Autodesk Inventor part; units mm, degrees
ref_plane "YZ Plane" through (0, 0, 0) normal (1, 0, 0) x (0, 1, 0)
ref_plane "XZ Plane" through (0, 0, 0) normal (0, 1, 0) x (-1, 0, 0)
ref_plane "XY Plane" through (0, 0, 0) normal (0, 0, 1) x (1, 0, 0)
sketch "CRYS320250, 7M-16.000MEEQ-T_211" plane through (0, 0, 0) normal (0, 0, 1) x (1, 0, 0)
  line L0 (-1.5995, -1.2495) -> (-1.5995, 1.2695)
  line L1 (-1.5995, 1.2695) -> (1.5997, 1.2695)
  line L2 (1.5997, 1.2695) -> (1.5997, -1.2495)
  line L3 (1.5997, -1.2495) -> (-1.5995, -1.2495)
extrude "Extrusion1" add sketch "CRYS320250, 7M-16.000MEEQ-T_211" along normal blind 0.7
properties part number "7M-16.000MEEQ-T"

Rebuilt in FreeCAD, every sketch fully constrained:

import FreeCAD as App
import Part
import Sketcher
from FreeCAD import Vector


def add_polygon(sketch, points):
    """Adds a closed chain of lines whose ends are joined by coincident constraints."""
    first, n = sketch.GeometryCount, len(points)
    for a, b in zip(points, points[1:] + points[:1]):
        sketch.addGeometry(Part.LineSegment(App.Vector(*a, 0), App.Vector(*b, 0)), False)
    for i in range(n):
        sketch.addConstraint(Sketcher.Constraint("Coincident", first + i, 2, first + (i + 1) % n, 1))

doc = App.newDocument("Part")
params = doc.addObject("Spreadsheet::Sheet", "Params")
for row, (alias, value) in enumerate([
    ("pad1_length", "0.7 mm"),
], start=1):
    params.set(f"A{row}", alias)
    params.set(f"B{row}", "=" + value)
    params.setAlias(f"B{row}", alias)

body = doc.addObject("PartDesign::Body", "Body")

sketch1 = body.newObject("Sketcher::SketchObject", "Sketch")
sketch1.AttachmentSupport = (doc.getObject("XY_Plane"), [""])
sketch1.MapMode = "FlatFace"
add_polygon(sketch1, [(-1.5995, 1.2695), (-1.5995, -1.2495), (1.5997, -1.2495), (1.5997, 1.2695)])
sketch1.addConstraint(Sketcher.Constraint("Vertical", 0))
sketch1.addConstraint(Sketcher.Constraint("Horizontal", 1))
sketch1.addConstraint(Sketcher.Constraint("Vertical", 2))
sketch1.addConstraint(Sketcher.Constraint("Horizontal", 3))
sketch1.addConstraint(Sketcher.Constraint("DistanceY", 0, 2, 0, 1, 2.519))
sketch1.addConstraint(Sketcher.Constraint("DistanceX", 1, 1, 1, 2, 3.1992))
sketch1.addConstraint(Sketcher.Constraint("DistanceX", 0, 2, -1, 1, 1.5995))
sketch1.addConstraint(Sketcher.Constraint("DistanceY", 0, 2, -1, 1, 1.2495))
pad1 = body.newObject("PartDesign::Pad", "Pad")
pad1.Profile = sketch1
pad1.setExpression("Length", "Params.pad1_length")

doc.recompute()
